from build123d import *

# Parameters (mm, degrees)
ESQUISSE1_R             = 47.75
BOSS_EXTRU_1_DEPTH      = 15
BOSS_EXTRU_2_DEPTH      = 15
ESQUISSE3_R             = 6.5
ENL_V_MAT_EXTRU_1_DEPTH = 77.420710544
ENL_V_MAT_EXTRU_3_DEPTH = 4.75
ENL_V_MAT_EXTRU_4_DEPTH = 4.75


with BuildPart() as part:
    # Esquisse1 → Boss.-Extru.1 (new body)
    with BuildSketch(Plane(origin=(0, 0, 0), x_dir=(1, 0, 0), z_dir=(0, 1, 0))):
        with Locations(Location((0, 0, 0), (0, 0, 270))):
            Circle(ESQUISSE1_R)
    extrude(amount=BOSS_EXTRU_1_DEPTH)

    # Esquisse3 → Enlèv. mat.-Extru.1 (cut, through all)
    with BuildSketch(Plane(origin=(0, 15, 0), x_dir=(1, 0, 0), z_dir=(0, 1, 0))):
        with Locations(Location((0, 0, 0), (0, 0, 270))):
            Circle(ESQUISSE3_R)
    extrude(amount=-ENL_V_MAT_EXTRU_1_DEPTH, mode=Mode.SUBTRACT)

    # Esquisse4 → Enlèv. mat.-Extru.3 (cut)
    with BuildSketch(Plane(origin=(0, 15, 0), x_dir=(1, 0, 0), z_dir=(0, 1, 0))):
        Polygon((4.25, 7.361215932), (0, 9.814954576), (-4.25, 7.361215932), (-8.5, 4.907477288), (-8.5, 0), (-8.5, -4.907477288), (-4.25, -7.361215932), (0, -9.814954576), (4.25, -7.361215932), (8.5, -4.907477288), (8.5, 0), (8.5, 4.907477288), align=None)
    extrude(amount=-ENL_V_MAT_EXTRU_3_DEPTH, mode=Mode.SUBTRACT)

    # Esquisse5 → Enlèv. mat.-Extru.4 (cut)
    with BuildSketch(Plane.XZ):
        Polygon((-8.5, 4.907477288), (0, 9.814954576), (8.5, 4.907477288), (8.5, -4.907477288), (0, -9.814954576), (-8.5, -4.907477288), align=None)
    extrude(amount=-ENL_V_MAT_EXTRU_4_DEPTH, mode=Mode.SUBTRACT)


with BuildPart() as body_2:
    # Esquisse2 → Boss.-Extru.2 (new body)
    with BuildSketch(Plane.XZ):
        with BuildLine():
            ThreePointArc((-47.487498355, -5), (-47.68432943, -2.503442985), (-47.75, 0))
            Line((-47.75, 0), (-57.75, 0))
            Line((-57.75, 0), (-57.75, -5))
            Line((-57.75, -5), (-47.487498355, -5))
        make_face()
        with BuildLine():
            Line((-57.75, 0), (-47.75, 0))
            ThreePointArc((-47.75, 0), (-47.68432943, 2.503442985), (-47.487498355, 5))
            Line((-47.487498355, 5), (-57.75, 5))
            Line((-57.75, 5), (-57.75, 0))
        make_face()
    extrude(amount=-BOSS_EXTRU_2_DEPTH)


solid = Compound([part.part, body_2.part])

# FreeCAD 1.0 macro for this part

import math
import FreeCAD as App
import Part
import Sketcher
from FreeCAD import Vector
Q = App.Units.Quantity


def add_polygon(sketch, points):
    """Adds a closed chain of lines whose ends are joined by coincident constraints."""
    first, n = sketch.GeometryCount, len(points)
    for a, b in zip(points, points[1:] + points[:1]):
        sketch.addGeometry(Part.LineSegment(App.Vector(*a, 0), App.Vector(*b, 0)), False)
    for i in range(n):
        sketch.addConstraint(Sketcher.Constraint("Coincident", first + i, 2, first + (i + 1) % n, 1))

doc = App.newDocument("Part")
params = doc.addObject("Spreadsheet::Sheet", "Params")
for row, (alias, value) in enumerate([
    ("sketch1_diameter", "95.5 mm"),
    ("pad1_length", "15 mm"),
    ("sketch2_diameter", "13 mm"),
    ("pocket2_length", "4.75 mm"),
    ("pocket3_length", "4.75 mm"),
    ("sketch5_height", "10 mm"),
    ("sketch5_radius", "47.75 mm"),
    ("pad2_length", "15 mm"),
], start=1):
    params.set(f"A{row}", alias)
    params.set(f"B{row}", "=" + value)
    params.setAlias(f"B{row}", alias)

body = doc.addObject("PartDesign::Body", "Body")

# Sketch on XZ plane
sketch1 = body.newObject("Sketcher::SketchObject", "Sketch")
sketch1.AttachmentSupport = (doc.getObject("XZ_Plane"), [""])
sketch1.MapMode = "FlatFace"
sketch1.addGeometry(Part.Circle(Vector(0, 0, 0), Vector(0, 0, 1), 47.75), False)
sketch1.addConstraint(Sketcher.Constraint("Coincident", 0, 3, -1, 1))
sketch1.addConstraint(Sketcher.Constraint("Diameter", 0, 95.5))
sketch1.setExpression("Constraints[1]", "Params.sketch1_diameter")
pad1 = body.newObject("PartDesign::Pad", "Pad")
pad1.Profile = sketch1
pad1.setExpression("Length", "Params.pad1_length")
pad1.Reversed = True

# Sketch on XZ plane
sketch2 = body.newObject("Sketcher::SketchObject", "Sketch001")
sketch2.AttachmentSupport = (doc.getObject("XZ_Plane"), [""])
sketch2.MapMode = "FlatFace"
sketch2.AttachmentOffset = App.Placement(Vector(0, 0, -15), App.Rotation())
sketch2.addGeometry(Part.Circle(Vector(0, 0, 0), Vector(0, 0, 1), 6.5), False)
sketch2.addConstraint(Sketcher.Constraint("Coincident", 0, 3, -1, 1))
sketch2.addConstraint(Sketcher.Constraint("Diameter", 0, 13.0))
sketch2.setExpression("Constraints[1]", "Params.sketch2_diameter")
pocket1 = body.newObject("PartDesign::Pocket", "Pocket")
pocket1.Profile = sketch2
pocket1.Type = "ThroughAll"
pocket1.Reversed = True

# Sketch on XZ plane
sketch3 = body.newObject("Sketcher::SketchObject", "Sketch002")
sketch3.AttachmentSupport = (doc.getObject("XZ_Plane"), [""])
sketch3.MapMode = "FlatFace"
sketch3.AttachmentOffset = App.Placement(Vector(0, 0, -15), App.Rotation())
add_polygon(sketch3, [(0, -9.814955), (-8.5, -4.907477), (-8.5, 4.907477), (0, 9.814955), (8.5, 4.907477), (8.5, -4.907477)])  # lines 0-5
sketch3.addConstraint(Sketcher.Constraint("Vertical", 1))
sketch3.addConstraint(Sketcher.Constraint("Vertical", 4))
sketch3.addConstraint(Sketcher.Constraint("Symmetric", 0, 2, 3, 2, -1, 1))
sketch3.addConstraint(Sketcher.Constraint("Symmetric", 2, 2, 5, 2, -1, 1))
sketch3.addConstraint(Sketcher.Constraint("PointOnObject", 2, 2, -2))
sketch3.addConstraint(Sketcher.Constraint("Parallel", 2, 5))
sketch3.addConstraint(Sketcher.Constraint("Horizontal", 1, 2, 3, 2))
sketch3.addConstraint(Sketcher.Constraint("Angle", 0, Q("150 deg")))
sketch3.addConstraint(Sketcher.Constraint("DistanceX", 1, 2, 3, 2, 17.0))
sketch3.addConstraint(Sketcher.Constraint("DistanceY", 1, 1, 1, 2, 9.814955))
pocket2 = body.newObject("PartDesign::Pocket", "Pocket001")
pocket2.Profile = sketch3
pocket2.setExpression("Length", "Params.pocket2_length")
pocket2.Reversed = True

# Sketch on XZ plane
sketch4 = body.newObject("Sketcher::SketchObject", "Sketch003")
sketch4.AttachmentSupport = (doc.getObject("XZ_Plane"), [""])
sketch4.MapMode = "FlatFace"
add_polygon(sketch4, [(0, 9.814955), (-8.5, 4.907477), (-8.5, -4.907477), (0, -9.814955), (8.5, -4.907477), (8.5, 4.907477)])  # lines 0-5
sketch4.addConstraint(Sketcher.Constraint("Vertical", 1))
sketch4.addConstraint(Sketcher.Constraint("Vertical", 4))
sketch4.addConstraint(Sketcher.Constraint("Symmetric", 0, 2, 3, 2, -1, 1))
sketch4.addConstraint(Sketcher.Constraint("Symmetric", 2, 2, 5, 2, -1, 1))
sketch4.addConstraint(Sketcher.Constraint("PointOnObject", 2, 2, -2))
sketch4.addConstraint(Sketcher.Constraint("Parallel", 2, 5))
sketch4.addConstraint(Sketcher.Constraint("Horizontal", 1, 2, 3, 2))
sketch4.addConstraint(Sketcher.Constraint("Angle", 0, Q("-150 deg")))
sketch4.addConstraint(Sketcher.Constraint("DistanceX", 1, 2, 3, 2, 17.0))
sketch4.addConstraint(Sketcher.Constraint("DistanceY", 1, 2, 1, 1, 9.814955))
pocket3 = body.newObject("PartDesign::Pocket", "Pocket002")
pocket3.Profile = sketch4
pocket3.setExpression("Length", "Params.pocket3_length")
body2 = doc.addObject("PartDesign::Body", "Body001")

# Sketch on XZ plane
sketch5 = body2.newObject("Sketcher::SketchObject", "Sketch004")
sketch5.AttachmentSupport = (doc.getObject("XZ_Plane001"), [""])
sketch5.MapMode = "FlatFace"
sketch5.addGeometry(Part.ArcOfCircle(Part.Circle(Vector(0, 0, 0), Vector(0, 0, 1), 47.75), math.radians(-180), math.radians(-173.989424)), False)
sketch5.addGeometry(Part.ArcOfCircle(Part.Circle(Vector(0, 0, 0), Vector(0, 0, 1), 47.75), math.radians(173.989424), math.radians(180)), False)
sketch5.addGeometry(Part.LineSegment(Vector(-47.487498, 5, 0), Vector(-57.75, 5, 0)), False)
sketch5.addGeometry(Part.LineSegment(Vector(-57.75, 5, 0), Vector(-57.75, -5, 0)), False)
sketch5.addGeometry(Part.LineSegment(Vector(-57.75, -5, 0), Vector(-47.487498, -5, 0)), False)
sketch5.addConstraint(Sketcher.Constraint("Tangent", 0, 1, 1, 2))
sketch5.addConstraint(Sketcher.Constraint("Coincident", 1, 1, 2, 1))
sketch5.addConstraint(Sketcher.Constraint("Coincident", 2, 2, 3, 1))
sketch5.addConstraint(Sketcher.Constraint("Coincident", 3, 2, 4, 1))
sketch5.addConstraint(Sketcher.Constraint("Coincident", 4, 2, 0, 2))
sketch5.addConstraint(Sketcher.Constraint("Horizontal", 2))
sketch5.addConstraint(Sketcher.Constraint("Vertical", 3))
sketch5.addConstraint(Sketcher.Constraint("Horizontal", 4))
sketch5.addConstraint(Sketcher.Constraint("Coincident", 0, 3, -1, 1))
sketch5.addConstraint(Sketcher.Constraint("Equal", 0, 1))
sketch5.addConstraint(Sketcher.Constraint("PointOnObject", 0, 1, -1))
sketch5.addConstraint(Sketcher.Constraint("Vertical", 1, 1, 4, 2))
sketch5.addConstraint(Sketcher.Constraint("DistanceY", 3, 2, 3, 1, 10.0))
sketch5.addConstraint(Sketcher.Constraint("Radius", 0, 47.75))
sketch5.addConstraint(Sketcher.Constraint("DistanceX", 2, 2, 0, 1, 10.0))
sketch5.setExpression("Constraints[12]", "Params.sketch5_height")
sketch5.setExpression("Constraints[13]", "Params.sketch5_radius")
pad2 = body2.newObject("PartDesign::Pad", "Pad001")
pad2.Profile = sketch5
pad2.setExpression("Length", "Params.pad2_length")
pad2.Reversed = True

doc.recompute()
